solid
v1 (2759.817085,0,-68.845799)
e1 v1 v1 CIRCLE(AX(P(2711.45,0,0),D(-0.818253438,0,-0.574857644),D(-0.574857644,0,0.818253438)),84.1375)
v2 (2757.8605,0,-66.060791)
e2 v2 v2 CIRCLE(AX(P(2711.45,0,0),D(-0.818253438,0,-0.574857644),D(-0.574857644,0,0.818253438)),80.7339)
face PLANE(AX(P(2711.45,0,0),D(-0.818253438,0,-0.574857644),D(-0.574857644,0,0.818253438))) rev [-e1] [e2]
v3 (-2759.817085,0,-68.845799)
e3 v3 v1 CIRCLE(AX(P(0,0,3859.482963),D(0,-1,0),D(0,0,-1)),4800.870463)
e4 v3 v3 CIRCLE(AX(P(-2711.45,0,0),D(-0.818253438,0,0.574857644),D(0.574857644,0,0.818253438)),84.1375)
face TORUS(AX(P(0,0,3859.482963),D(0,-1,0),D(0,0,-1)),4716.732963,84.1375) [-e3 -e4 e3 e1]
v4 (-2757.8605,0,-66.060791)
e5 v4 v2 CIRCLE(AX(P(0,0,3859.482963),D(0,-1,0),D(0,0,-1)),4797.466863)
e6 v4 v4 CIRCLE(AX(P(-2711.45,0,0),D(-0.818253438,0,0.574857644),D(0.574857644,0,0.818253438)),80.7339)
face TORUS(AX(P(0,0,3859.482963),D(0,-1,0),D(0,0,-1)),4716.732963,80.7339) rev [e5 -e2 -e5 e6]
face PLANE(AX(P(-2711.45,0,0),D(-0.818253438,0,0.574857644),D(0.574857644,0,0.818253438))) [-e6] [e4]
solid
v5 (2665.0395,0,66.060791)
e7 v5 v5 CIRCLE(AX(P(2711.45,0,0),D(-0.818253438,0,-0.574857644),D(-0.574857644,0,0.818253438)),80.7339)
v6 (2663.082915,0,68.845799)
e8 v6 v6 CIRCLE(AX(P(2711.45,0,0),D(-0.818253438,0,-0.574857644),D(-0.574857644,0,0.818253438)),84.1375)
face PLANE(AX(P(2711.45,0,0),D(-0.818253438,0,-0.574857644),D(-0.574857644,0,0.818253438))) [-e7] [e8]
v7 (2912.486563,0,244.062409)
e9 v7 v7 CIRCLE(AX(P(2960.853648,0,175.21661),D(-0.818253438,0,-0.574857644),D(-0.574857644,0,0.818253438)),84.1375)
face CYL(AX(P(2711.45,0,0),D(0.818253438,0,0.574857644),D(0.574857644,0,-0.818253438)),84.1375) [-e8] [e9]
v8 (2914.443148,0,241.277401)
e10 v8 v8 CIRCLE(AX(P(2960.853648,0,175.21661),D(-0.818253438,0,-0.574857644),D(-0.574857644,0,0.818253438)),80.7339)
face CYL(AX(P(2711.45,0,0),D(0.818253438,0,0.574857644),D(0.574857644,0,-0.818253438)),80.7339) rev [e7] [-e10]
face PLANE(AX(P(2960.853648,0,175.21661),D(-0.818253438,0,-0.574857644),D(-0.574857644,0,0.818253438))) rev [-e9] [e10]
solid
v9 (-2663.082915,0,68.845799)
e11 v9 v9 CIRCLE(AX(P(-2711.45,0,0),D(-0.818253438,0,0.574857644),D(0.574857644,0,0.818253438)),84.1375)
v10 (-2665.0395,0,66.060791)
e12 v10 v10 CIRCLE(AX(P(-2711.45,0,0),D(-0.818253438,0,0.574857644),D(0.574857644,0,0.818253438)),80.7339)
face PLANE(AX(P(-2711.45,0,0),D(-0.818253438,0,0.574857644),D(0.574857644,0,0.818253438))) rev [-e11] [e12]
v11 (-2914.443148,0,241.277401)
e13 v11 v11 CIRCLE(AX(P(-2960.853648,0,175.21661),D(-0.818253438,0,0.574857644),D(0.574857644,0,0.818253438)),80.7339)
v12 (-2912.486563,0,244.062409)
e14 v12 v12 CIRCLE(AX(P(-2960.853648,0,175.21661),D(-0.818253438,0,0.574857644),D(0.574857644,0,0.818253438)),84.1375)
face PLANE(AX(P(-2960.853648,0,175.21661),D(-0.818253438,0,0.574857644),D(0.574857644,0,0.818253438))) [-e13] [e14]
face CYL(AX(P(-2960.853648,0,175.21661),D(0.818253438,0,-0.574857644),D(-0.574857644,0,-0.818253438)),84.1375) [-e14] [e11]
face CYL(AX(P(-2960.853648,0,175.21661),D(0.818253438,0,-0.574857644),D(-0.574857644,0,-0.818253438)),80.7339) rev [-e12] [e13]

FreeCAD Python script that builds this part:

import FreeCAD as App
import Part
import Sketcher
from FreeCAD import Vector
Q = App.Units.Quantity

doc = App.newDocument("Part")
body = doc.addObject("PartDesign::Body", "Body")

# Sketch on an angled plane
sketch1 = body.newObject("Sketcher::SketchObject", "Sketch")
sketch1.Placement = App.Placement(Vector(2711.45, 0, 0), App.Rotation(Vector(-0.574857644, 0, 0.818253438), Vector(0, 1, 0), Vector(-0.818253438, 0, -0.574857644), "ZXY"))
sketch1.addGeometry([
    Part.Circle(Vector(0, 0, 0), Vector(0, 0, 1), 84),
    Part.Circle(Vector(0, 0, 0), Vector(0, 0, 1), 81),
], False)
sketch1.addConstraint([
    Sketcher.Constraint("Coincident", 0, 3, -1, 1),
    Sketcher.Constraint("Coincident", 1, 3, -1, 1),
    Sketcher.Constraint("Diameter", 0, Q("6.625 in")),
    Sketcher.Constraint("Diameter", 1, Q("6.357 in")),
])
pad1 = body.newObject("PartDesign::Pad", "Pad")
pad1.Profile = sketch1
pad1.Length = Q("12 in")
pad1.Reversed = True
body2 = doc.addObject("PartDesign::Body", "Body001")

# Sketch on an angled plane
sketch2 = body2.newObject("Sketcher::SketchObject", "Sketch001")
sketch2.Placement = App.Placement(Vector(2711.45, 0, 0), App.Rotation(Vector(0.574857644, 0, -0.818253438), Vector(0, 1, 0), Vector(0.818253438, 0, 0.574857644), "ZXY"))
sketch2.addGeometry([
    Part.Circle(Vector(0, 0, 0), Vector(0, 0, 1), 84),
    Part.Circle(Vector(0, 0, 0), Vector(0, 0, 1), 81),
], False)
sketch2.addGeometry(Part.LineSegment(Vector(-4717, 0, 0), Vector(-4717, 10, 0)), True)  # axis
sketch2.addConstraint([
    Sketcher.Constraint("Vertical", 2),
    Sketcher.Constraint("Coincident", 0, 3, -1, 1),
    Sketcher.Constraint("Coincident", 1, 3, -1, 1),
    Sketcher.Constraint("PointOnObject", 2, 1, -1),
    Sketcher.Constraint("Diameter", 0, Q("6.625 in")),
    Sketcher.Constraint("Diameter", 1, Q("6.357 in")),
    Sketcher.Constraint("DistanceY", 2, 1, 2, 2, 10.0),
    Sketcher.Constraint("DistanceX", 2, 1, -1, 1, 4716.732962),
])
revolution = body2.newObject("PartDesign::Revolution", "Revolution")
revolution.Profile = sketch2
revolution.ReferenceAxis = (sketch2, ["Axis0"])
revolution.Angle = 70.179327
body3 = doc.addObject("PartDesign::Body", "Body002")

# Sketch on an angled plane
sketch3 = body3.newObject("Sketcher::SketchObject", "Sketch002")
sketch3.Placement = App.Placement(Vector(-2960.853648, 0, 175.21661), App.Rotation(Vector(-0.574857644, 0, -0.818253438), Vector(0, 1, 0), Vector(0.818253438, 0, -0.574857644), "ZXY"))
sketch3.addGeometry([
    Part.Circle(Vector(0, 0, 0), Vector(0, 0, 1), 84),
    Part.Circle(Vector(0, 0, 0), Vector(0, 0, 1), 81),
], False)
sketch3.addConstraint([
    Sketcher.Constraint("Coincident", 0, 3, -1, 1),
    Sketcher.Constraint("Coincident", 1, 3, -1, 1),
    Sketcher.Constraint("Diameter", 0, Q("6.625 in")),
    Sketcher.Constraint("Diameter", 1, Q("6.357 in")),
])
pad2 = body3.newObject("PartDesign::Pad", "Pad001")
pad2.Profile = sketch3
pad2.Length = Q("12 in")

doc.recompute()
